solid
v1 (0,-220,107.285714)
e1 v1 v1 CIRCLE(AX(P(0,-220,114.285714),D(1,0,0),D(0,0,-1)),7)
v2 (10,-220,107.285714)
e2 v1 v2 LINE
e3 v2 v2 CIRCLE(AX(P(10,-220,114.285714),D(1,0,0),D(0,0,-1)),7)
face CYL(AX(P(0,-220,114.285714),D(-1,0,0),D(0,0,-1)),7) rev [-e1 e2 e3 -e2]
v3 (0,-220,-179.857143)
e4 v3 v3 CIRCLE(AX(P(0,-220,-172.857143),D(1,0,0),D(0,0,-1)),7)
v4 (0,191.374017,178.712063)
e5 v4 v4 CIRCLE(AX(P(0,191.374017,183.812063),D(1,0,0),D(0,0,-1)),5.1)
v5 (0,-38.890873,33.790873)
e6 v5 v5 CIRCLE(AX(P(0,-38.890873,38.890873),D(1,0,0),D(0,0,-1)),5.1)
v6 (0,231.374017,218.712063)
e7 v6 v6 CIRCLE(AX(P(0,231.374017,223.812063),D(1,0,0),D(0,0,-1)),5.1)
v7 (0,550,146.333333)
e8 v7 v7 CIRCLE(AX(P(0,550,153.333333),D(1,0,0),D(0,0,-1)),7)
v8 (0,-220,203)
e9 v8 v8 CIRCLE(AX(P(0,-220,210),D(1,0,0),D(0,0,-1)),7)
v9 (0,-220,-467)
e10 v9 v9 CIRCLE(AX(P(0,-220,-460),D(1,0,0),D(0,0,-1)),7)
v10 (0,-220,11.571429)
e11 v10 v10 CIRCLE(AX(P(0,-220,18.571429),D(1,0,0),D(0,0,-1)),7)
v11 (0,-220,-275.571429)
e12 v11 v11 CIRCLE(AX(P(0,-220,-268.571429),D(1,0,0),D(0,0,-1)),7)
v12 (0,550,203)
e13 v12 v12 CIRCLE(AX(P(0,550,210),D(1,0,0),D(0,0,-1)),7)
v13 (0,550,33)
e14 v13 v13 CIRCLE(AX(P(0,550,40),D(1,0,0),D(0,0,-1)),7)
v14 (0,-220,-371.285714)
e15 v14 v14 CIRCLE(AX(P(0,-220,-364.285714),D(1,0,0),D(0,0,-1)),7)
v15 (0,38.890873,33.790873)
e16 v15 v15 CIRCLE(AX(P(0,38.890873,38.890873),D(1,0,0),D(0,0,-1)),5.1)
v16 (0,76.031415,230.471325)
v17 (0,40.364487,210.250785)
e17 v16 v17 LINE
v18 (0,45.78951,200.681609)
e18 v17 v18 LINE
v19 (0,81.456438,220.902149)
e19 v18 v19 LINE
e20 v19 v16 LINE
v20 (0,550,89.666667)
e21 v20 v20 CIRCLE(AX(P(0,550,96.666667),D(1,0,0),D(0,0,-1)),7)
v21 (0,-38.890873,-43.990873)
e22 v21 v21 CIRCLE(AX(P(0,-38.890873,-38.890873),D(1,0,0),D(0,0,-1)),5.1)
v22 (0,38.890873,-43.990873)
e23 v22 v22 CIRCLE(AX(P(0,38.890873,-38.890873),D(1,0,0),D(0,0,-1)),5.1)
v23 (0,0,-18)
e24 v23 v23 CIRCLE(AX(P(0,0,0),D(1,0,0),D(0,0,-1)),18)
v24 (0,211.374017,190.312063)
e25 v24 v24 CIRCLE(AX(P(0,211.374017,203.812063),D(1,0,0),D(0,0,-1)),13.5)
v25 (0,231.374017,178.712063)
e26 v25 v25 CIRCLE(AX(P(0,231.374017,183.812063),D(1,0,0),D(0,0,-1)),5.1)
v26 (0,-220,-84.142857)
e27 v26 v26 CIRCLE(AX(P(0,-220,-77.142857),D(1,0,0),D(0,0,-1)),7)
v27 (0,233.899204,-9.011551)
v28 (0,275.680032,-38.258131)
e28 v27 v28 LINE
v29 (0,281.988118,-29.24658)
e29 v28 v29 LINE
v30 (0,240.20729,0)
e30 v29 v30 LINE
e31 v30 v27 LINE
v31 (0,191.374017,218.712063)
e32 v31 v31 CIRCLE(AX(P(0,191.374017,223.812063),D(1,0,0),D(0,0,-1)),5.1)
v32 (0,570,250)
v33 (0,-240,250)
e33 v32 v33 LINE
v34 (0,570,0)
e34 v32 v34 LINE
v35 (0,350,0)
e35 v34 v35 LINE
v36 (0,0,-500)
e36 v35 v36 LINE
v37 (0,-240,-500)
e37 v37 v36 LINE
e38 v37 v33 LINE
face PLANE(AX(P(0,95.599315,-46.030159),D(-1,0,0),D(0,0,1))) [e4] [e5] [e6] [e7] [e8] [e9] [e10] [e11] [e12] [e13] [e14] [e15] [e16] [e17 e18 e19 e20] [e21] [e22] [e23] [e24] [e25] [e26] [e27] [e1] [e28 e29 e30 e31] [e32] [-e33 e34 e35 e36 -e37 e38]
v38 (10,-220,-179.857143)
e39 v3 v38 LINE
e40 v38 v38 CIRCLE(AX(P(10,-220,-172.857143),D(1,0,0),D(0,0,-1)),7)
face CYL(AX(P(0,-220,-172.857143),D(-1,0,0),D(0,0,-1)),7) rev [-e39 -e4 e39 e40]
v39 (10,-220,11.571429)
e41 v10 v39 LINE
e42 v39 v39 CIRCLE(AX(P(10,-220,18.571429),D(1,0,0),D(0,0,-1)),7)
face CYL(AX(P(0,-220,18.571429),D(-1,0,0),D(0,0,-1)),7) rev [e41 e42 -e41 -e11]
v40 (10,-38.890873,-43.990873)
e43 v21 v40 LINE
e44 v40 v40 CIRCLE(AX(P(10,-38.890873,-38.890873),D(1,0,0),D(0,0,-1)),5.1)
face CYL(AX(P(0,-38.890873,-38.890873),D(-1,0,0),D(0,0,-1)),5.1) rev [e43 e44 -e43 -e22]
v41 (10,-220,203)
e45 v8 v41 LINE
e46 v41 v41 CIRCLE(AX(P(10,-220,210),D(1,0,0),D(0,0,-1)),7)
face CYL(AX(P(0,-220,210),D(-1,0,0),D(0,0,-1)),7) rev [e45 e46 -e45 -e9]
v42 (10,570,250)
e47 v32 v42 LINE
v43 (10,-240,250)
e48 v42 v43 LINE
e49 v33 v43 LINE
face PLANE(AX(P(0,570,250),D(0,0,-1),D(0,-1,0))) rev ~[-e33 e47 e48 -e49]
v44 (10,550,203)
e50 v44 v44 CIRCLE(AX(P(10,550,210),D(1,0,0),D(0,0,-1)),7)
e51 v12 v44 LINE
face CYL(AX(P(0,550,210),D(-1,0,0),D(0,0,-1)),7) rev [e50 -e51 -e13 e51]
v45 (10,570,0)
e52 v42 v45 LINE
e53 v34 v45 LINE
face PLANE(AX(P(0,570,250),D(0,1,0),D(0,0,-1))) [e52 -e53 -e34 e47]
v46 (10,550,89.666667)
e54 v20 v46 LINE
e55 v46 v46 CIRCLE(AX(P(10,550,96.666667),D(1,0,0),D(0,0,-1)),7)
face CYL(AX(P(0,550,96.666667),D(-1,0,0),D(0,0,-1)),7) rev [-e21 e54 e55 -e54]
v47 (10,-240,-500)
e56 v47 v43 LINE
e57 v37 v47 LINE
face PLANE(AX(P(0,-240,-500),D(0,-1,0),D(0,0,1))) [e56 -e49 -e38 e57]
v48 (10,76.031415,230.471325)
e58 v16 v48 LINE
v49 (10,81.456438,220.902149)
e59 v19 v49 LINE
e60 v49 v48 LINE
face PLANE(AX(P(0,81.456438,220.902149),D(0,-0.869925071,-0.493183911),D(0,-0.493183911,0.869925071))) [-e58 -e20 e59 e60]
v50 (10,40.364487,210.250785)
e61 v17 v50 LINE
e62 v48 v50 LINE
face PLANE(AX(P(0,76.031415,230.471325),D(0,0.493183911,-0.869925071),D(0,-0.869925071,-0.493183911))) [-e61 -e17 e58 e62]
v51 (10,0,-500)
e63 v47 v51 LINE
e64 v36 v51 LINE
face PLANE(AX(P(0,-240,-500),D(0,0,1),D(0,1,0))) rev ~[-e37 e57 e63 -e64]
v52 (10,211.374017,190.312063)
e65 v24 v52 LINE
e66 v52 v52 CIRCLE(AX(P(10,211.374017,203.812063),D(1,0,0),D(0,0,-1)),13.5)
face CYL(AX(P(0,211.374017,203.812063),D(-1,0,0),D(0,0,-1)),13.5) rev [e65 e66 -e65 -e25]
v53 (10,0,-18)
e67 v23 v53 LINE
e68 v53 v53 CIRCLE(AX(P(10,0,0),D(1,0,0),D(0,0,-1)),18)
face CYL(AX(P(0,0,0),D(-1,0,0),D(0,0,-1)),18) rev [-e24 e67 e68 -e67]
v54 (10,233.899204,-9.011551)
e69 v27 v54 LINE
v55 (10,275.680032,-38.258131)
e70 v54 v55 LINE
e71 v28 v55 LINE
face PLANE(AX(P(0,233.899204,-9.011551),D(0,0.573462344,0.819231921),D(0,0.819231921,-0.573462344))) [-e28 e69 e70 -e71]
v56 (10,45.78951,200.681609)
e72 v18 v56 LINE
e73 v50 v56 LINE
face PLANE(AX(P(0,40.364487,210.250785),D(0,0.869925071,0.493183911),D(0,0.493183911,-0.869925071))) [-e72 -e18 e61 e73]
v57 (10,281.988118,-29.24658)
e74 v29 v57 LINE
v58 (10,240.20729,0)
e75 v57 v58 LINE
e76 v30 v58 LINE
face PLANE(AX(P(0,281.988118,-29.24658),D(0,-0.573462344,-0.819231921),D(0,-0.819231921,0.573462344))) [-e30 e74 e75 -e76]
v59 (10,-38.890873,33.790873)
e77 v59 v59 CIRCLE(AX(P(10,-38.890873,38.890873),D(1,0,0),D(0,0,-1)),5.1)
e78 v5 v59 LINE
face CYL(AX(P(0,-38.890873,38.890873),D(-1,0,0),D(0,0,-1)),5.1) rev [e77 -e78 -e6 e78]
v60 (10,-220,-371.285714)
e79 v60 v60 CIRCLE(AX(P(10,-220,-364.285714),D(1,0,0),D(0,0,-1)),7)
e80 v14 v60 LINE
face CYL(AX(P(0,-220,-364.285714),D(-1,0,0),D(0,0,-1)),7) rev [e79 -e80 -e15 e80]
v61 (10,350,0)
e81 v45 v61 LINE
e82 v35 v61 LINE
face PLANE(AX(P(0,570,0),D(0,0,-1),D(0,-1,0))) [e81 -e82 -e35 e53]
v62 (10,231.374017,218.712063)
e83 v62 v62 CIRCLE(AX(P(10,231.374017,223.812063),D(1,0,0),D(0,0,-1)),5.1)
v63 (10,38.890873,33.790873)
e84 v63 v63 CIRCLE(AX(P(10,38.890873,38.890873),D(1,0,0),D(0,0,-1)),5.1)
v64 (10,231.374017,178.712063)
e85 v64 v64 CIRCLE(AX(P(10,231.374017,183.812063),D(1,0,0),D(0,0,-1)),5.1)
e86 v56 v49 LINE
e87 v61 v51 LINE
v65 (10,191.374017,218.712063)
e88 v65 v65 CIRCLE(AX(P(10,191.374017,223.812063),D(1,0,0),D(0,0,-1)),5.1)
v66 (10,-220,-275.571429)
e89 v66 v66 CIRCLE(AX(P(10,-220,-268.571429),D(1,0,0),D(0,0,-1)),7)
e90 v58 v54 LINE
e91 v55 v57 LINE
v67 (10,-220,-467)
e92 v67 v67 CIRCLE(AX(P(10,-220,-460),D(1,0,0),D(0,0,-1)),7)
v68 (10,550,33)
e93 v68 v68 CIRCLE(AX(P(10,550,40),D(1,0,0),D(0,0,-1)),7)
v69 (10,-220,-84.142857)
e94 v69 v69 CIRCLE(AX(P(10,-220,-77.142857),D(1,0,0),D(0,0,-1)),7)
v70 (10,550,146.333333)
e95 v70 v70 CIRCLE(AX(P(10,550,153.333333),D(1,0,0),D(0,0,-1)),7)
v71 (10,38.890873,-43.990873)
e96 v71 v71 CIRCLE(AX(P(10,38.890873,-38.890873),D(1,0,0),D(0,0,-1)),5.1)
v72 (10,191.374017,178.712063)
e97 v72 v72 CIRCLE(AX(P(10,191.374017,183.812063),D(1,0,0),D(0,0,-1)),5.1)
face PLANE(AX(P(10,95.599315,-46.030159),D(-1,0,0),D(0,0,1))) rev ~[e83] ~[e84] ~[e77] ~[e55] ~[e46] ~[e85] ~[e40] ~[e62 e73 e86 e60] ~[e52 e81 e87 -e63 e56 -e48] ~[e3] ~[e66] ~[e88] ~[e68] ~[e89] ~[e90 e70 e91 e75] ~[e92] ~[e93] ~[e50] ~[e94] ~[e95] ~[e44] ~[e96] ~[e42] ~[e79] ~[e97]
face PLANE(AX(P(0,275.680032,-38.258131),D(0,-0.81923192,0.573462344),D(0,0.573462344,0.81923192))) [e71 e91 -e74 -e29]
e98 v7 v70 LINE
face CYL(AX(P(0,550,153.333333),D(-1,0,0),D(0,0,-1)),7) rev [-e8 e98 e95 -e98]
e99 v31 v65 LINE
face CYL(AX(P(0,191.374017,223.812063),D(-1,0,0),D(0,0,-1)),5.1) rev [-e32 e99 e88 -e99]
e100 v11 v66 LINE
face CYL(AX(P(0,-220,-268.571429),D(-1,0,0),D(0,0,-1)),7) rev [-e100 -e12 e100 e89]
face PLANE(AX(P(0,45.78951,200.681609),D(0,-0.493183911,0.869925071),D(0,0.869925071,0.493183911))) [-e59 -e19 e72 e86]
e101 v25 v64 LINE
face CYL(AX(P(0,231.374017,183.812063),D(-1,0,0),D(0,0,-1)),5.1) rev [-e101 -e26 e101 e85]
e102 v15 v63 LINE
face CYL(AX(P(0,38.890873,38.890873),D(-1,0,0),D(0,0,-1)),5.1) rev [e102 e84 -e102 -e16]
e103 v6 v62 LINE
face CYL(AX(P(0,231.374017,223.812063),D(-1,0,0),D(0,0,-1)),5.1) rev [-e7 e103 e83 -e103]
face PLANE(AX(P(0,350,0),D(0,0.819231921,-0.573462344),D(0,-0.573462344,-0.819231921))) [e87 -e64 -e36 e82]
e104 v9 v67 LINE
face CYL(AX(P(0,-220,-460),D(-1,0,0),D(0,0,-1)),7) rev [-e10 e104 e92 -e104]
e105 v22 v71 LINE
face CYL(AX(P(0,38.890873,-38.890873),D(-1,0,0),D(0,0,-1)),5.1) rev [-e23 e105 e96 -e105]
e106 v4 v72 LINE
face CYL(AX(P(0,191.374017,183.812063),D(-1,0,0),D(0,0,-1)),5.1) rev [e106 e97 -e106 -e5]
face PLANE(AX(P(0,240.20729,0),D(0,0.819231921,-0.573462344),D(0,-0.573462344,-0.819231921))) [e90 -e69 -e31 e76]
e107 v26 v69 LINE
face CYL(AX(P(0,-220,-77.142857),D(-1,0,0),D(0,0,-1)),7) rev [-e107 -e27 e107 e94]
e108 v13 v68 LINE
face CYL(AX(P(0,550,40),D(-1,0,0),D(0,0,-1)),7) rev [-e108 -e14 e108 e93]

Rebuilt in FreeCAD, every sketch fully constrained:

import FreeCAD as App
import Part
import Sketcher
Q = App.Units.Quantity

doc = App.newDocument("Part")
body = doc.addObject("PartDesign::Body", "Body")

# Sketch on YZ plane
sketch1 = doc.addObject("Sketcher::SketchObject", "Sketch")
body.addObject(sketch1)
sketch1.AttachmentSupport = (doc.YZ_Plane, [""])
sketch1.MapMode = "FlatFace"
sketch1.addGeometry(Part.LineSegment(App.Vector(570, 250, 0), App.Vector(-240, 250, 0)), False)
sketch1.addGeometry(Part.LineSegment(App.Vector(-240, 250, 0), App.Vector(-240, -500, 0)), False)
sketch1.addGeometry(Part.LineSegment(App.Vector(-240, -500, 0), App.Vector(0, -500, 0)), False)
sketch1.addGeometry(Part.LineSegment(App.Vector(0, -500, 0), App.Vector(350, 0, 0)), False)
sketch1.addGeometry(Part.LineSegment(App.Vector(350, 0, 0), App.Vector(570, 0, 0)), False)
sketch1.addGeometry(Part.LineSegment(App.Vector(570, 0, 0), App.Vector(570, 250, 0)), False)
sketch1.addGeometry(Part.Circle(App.Vector(-220, -460, 0), App.Vector(0, 0, 1), 7), False)
sketch1.addGeometry(Part.Circle(App.Vector(-220, -364, 0), App.Vector(0, 0, 1), 7), False)
sketch1.addGeometry(Part.Circle(App.Vector(-220, -269, 0), App.Vector(0, 0, 1), 7), False)
sketch1.addGeometry(Part.Circle(App.Vector(-220, -173, 0), App.Vector(0, 0, 1), 7), False)
sketch1.addGeometry(Part.Circle(App.Vector(-220, -77, 0), App.Vector(0, 0, 1), 7), False)
sketch1.addGeometry(Part.Circle(App.Vector(-220, 19, 0), App.Vector(0, 0, 1), 7), False)
sketch1.addGeometry(Part.Circle(App.Vector(-39, -39, 0), App.Vector(0, 0, 1), 5), False)
sketch1.addGeometry(Part.Circle(App.Vector(-39, 39, 0), App.Vector(0, 0, 1), 5), False)
sketch1.addGeometry(Part.Circle(App.Vector(-220, 114, 0), App.Vector(0, 0, 1), 7), False)
sketch1.addGeometry(Part.Circle(App.Vector(-220, 210, 0), App.Vector(0, 0, 1), 7), False)
sketch1.addGeometry(Part.Circle(App.Vector(39, -39, 0), App.Vector(0, 0, 1), 5), False)
sketch1.addGeometry(Part.Circle(App.Vector(0, 0, 0), App.Vector(0, 0, 1), 18), False)
sketch1.addGeometry(Part.Circle(App.Vector(39, 39, 0), App.Vector(0, 0, 1), 5), False)
sketch1.addGeometry(Part.LineSegment(App.Vector(46, 201, 0), App.Vector(40, 210, 0)), False)
sketch1.addGeometry(Part.LineSegment(App.Vector(40, 210, 0), App.Vector(76, 230, 0)), False)
sketch1.addGeometry(Part.LineSegment(App.Vector(76, 230, 0), App.Vector(81, 221, 0)), False)
sketch1.addGeometry(Part.LineSegment(App.Vector(81, 221, 0), App.Vector(46, 201, 0)), False)
sketch1.addGeometry(Part.LineSegment(App.Vector(282, -29, 0), App.Vector(276, -38, 0)), False)
sketch1.addGeometry(Part.LineSegment(App.Vector(276, -38, 0), App.Vector(234, -9, 0)), False)
sketch1.addGeometry(Part.LineSegment(App.Vector(234, -9, 0), App.Vector(240, 0, 0)), False)
sketch1.addGeometry(Part.LineSegment(App.Vector(240, 0, 0), App.Vector(282, -29, 0)), False)
sketch1.addGeometry(Part.Circle(App.Vector(191, 184, 0), App.Vector(0, 0, 1), 5), False)
sketch1.addGeometry(Part.Circle(App.Vector(211, 204, 0), App.Vector(0, 0, 1), 14), False)
sketch1.addGeometry(Part.Circle(App.Vector(191, 224, 0), App.Vector(0, 0, 1), 5), False)
sketch1.addGeometry(Part.Circle(App.Vector(231, 184, 0), App.Vector(0, 0, 1), 5), False)
sketch1.addGeometry(Part.Circle(App.Vector(231, 224, 0), App.Vector(0, 0, 1), 5), False)
sketch1.addGeometry(Part.Circle(App.Vector(550, 40, 0), App.Vector(0, 0, 1), 7), False)
sketch1.addGeometry(Part.Circle(App.Vector(550, 97, 0), App.Vector(0, 0, 1), 7), False)
sketch1.addGeometry(Part.Circle(App.Vector(550, 153, 0), App.Vector(0, 0, 1), 7), False)
sketch1.addGeometry(Part.Circle(App.Vector(550, 210, 0), App.Vector(0, 0, 1), 7), False)
sketch1.addConstraint(Sketcher.Constraint("Coincident", 0, 2, 1, 1))
sketch1.addConstraint(Sketcher.Constraint("Coincident", 1, 2, 2, 1))
sketch1.addConstraint(Sketcher.Constraint("Coincident", 2, 2, 3, 1))
sketch1.addConstraint(Sketcher.Constraint("Coincident", 3, 2, 4, 1))
sketch1.addConstraint(Sketcher.Constraint("Coincident", 4, 2, 5, 1))
sketch1.addConstraint(Sketcher.Constraint("Coincident", 5, 2, 0, 1))
sketch1.addConstraint(Sketcher.Constraint("Coincident", 19, 2, 20, 1))
sketch1.addConstraint(Sketcher.Constraint("Coincident", 20, 2, 21, 1))
sketch1.addConstraint(Sketcher.Constraint("Coincident", 21, 2, 22, 1))
sketch1.addConstraint(Sketcher.Constraint("Coincident", 22, 2, 19, 1))
sketch1.addConstraint(Sketcher.Constraint("Coincident", 23, 2, 24, 1))
sketch1.addConstraint(Sketcher.Constraint("Coincident", 24, 2, 25, 1))
sketch1.addConstraint(Sketcher.Constraint("Coincident", 25, 2, 26, 1))
sketch1.addConstraint(Sketcher.Constraint("Coincident", 26, 2, 23, 1))
sketch1.addConstraint(Sketcher.Constraint("Horizontal", 0))
sketch1.addConstraint(Sketcher.Constraint("Vertical", 1))
sketch1.addConstraint(Sketcher.Constraint("Horizontal", 2))
sketch1.addConstraint(Sketcher.Constraint("Horizontal", 4))
sketch1.addConstraint(Sketcher.Constraint("Vertical", 5))
sketch1.addConstraint(Sketcher.Constraint("Coincident", 17, 3, -1, 1))
sketch1.addConstraint(Sketcher.Constraint("Equal", 6, 7))
sketch1.addConstraint(Sketcher.Constraint("Equal", 7, 8))
sketch1.addConstraint(Sketcher.Constraint("Equal", 8, 9))
sketch1.addConstraint(Sketcher.Constraint("Equal", 9, 10))
sketch1.addConstraint(Sketcher.Constraint("Equal", 10, 11))
sketch1.addConstraint(Sketcher.Constraint("Equal", 12, 13))
sketch1.addConstraint(Sketcher.Constraint("Equal", 11, 14))
sketch1.addConstraint(Sketcher.Constraint("Equal", 14, 15))
sketch1.addConstraint(Sketcher.Constraint("Equal", 13, 16))
sketch1.addConstraint(Sketcher.Constraint("Equal", 16, 18))
sketch1.addConstraint(Sketcher.Constraint("Equal", 18, 27))
sketch1.addConstraint(Sketcher.Constraint("Equal", 27, 29))
sketch1.addConstraint(Sketcher.Constraint("Equal", 29, 30))
sketch1.addConstraint(Sketcher.Constraint("Equal", 30, 31))
sketch1.addConstraint(Sketcher.Constraint("Equal", 15, 32))
sketch1.addConstraint(Sketcher.Constraint("Equal", 32, 33))
sketch1.addConstraint(Sketcher.Constraint("Equal", 33, 34))
sketch1.addConstraint(Sketcher.Constraint("Equal", 34, 35))
sketch1.addConstraint(Sketcher.Constraint("Symmetric", 13, 3, 16, 3, -1, 1))
sketch1.addConstraint(Sketcher.Constraint("Symmetric", 12, 3, 18, 3, -1, 1))
sketch1.addConstraint(Sketcher.Constraint("Symmetric", 12, 3, 16, 3, -2))
sketch1.addConstraint(Sketcher.Constraint("PointOnObject", 2, 2, -2))
sketch1.addConstraint(Sketcher.Constraint("PointOnObject", 3, 2, -1))
sketch1.addConstraint(Sketcher.Constraint("PointOnObject", 25, 2, -1))
sketch1.addConstraint(Sketcher.Constraint("Perpendicular", 19, 20))
sketch1.addConstraint(Sketcher.Constraint("Perpendicular", 20, 21))
sketch1.addConstraint(Sketcher.Constraint("Perpendicular", 21, 22))
sketch1.addConstraint(Sketcher.Constraint("Parallel", 3, 23))
sketch1.addConstraint(Sketcher.Constraint("Perpendicular", 23, 24))
sketch1.addConstraint(Sketcher.Constraint("Perpendicular", 24, 25))
sketch1.addConstraint(Sketcher.Constraint("Perpendicular", 25, 26))
sketch1.addConstraint(Sketcher.Constraint("Horizontal", 27, 3, 30, 3))
sketch1.addConstraint(Sketcher.Constraint("Horizontal", 29, 3, 31, 3))
sketch1.addConstraint(Sketcher.Constraint("Horizontal", 15, 3, 35, 3))
sketch1.addConstraint(Sketcher.Constraint("Vertical", 6, 3, 7, 3))
sketch1.addConstraint(Sketcher.Constraint("Vertical", 7, 3, 8, 3))
sketch1.addConstraint(Sketcher.Constraint("Vertical", 8, 3, 9, 3))
sketch1.addConstraint(Sketcher.Constraint("Vertical", 9, 3, 10, 3))
sketch1.addConstraint(Sketcher.Constraint("Vertical", 10, 3, 11, 3))
sketch1.addConstraint(Sketcher.Constraint("Vertical", 11, 3, 14, 3))
sketch1.addConstraint(Sketcher.Constraint("Vertical", 14, 3, 15, 3))
sketch1.addConstraint(Sketcher.Constraint("Vertical", 27, 3, 29, 3))
sketch1.addConstraint(Sketcher.Constraint("Vertical", 30, 3, 31, 3))
sketch1.addConstraint(Sketcher.Constraint("Vertical", 32, 3, 33, 3))
sketch1.addConstraint(Sketcher.Constraint("Vertical", 33, 3, 34, 3))
sketch1.addConstraint(Sketcher.Constraint("Vertical", 34, 3, 35, 3))
sketch1.addConstraint(Sketcher.Constraint("Equal", 21, 23))
sketch1.addConstraint(Sketcher.Constraint("Diameter", 6, Q("14 mm")))
sketch1.addConstraint(Sketcher.Constraint("Diameter", 17, Q("36 mm")))
sketch1.addConstraint(Sketcher.Constraint("Diameter", 28, Q("27 mm")))
sketch1.addConstraint(Sketcher.Constraint("Diameter", 12, Q("10.2 mm")))
sketch1.addConstraint(Sketcher.Constraint("DistanceX", 0, 2, 0, 1, Q("810 mm")))
sketch1.addConstraint(Sketcher.Constraint("DistanceX", 2, 1, 2, 2, Q("240 mm")))
sketch1.addConstraint(Sketcher.Constraint("DistanceX", 4, 1, 4, 2, Q("220 mm")))
sketch1.addConstraint(Sketcher.Constraint("DistanceY", 1, 2, 1, 1, Q("750 mm")))
sketch1.addConstraint(Sketcher.Constraint("DistanceY", 5, 1, 5, 2, Q("250 mm")))
sketch1.addConstraint(Sketcher.Constraint("Distance", 19, Q("11 mm")))
sketch1.addConstraint(Sketcher.Constraint("Distance", 20, Q("41 mm")))
sketch1.addConstraint(Sketcher.Constraint("Distance", 24, Q("51 mm")))
sketch1.addConstraint(Sketcher.Constraint("DistanceX", 6, 3, -1, 1, Q("220 mm")))
sketch1.addConstraint(Sketcher.Constraint("DistanceY", 6, 3, -1, 1, Q("460 mm")))
sketch1.addConstraint(Sketcher.Constraint("DistanceY", -1, 1, 15, 3, Q("210 mm")))
sketch1.addConstraint(Sketcher.Constraint("DistanceX", -1, 1, 32, 3, Q("550 mm")))
sketch1.addConstraint(Sketcher.Constraint("DistanceY", -1, 1, 32, 3, Q("40 mm")))
sketch1.addConstraint(Sketcher.Constraint("DistanceX", 27, 3, 28, 3, Q("20 mm")))
sketch1.addConstraint(Sketcher.Constraint("DistanceY", 27, 3, 28, 3, Q("20 mm")))
sketch1.addConstraint(Sketcher.Constraint("DistanceY", 28, 3, 29, 3, Q("20 mm")))
sketch1.addConstraint(Sketcher.Constraint("DistanceX", 28, 3, 30, 3, Q("20 mm")))
sketch1.addConstraint(Sketcher.Constraint("DistanceY", 12, 3, 11, 3, Q("57.462302 mm")))
sketch1.addConstraint(Sketcher.Constraint("DistanceY", 8, 3, 13, 3, Q("307.462302 mm")))
sketch1.addConstraint(Sketcher.Constraint("DistanceX", 20, 2, 29, 3, Q("115.342602 mm")))
sketch1.addConstraint(Sketcher.Constraint("DistanceX", 30, 3, 26, 2, Q("50.614101 mm")))
sketch1.addConstraint(Sketcher.Constraint("DistanceY", 8, 3, -1, 1, Q("268.571429 mm")))
sketch1.addConstraint(Sketcher.Constraint("DistanceY", -1, 1, 21, 2, Q("220.902149 mm")))
sketch1.addConstraint(Sketcher.Constraint("DistanceX", -1, 1, 22, 2, Q("45.78951 mm")))
sketch1.addConstraint(Sketcher.Constraint("DistanceY", -1, 1, 22, 2, Q("200.681609 mm")))
sketch1.addConstraint(Sketcher.Constraint("DistanceY", 7, 3, 9, 3, Q("191.428571 mm")))
sketch1.addConstraint(Sketcher.Constraint("DistanceY", 8, 3, 10, 3, Q("191.428571 mm")))
sketch1.addConstraint(Sketcher.Constraint("DistanceY", 9, 3, 11, 3, Q("191.428571 mm")))
sketch1.addConstraint(Sketcher.Constraint("DistanceY", 10, 3, 14, 3, Q("191.428571 mm")))
sketch1.addConstraint(Sketcher.Constraint("DistanceY", 18, 3, 27, 3, Q("144.92119 mm")))
sketch1.addConstraint(Sketcher.Constraint("DistanceX", 13, 3, 27, 3, Q("230.26489 mm")))
sketch1.addConstraint(Sketcher.Constraint("DistanceY", 34, 3, 30, 3, Q("30.478729 mm")))
sketch1.addConstraint(Sketcher.Constraint("DistanceY", -1, 1, 33, 3, Q("96.666667 mm")))
pad1 = doc.addObject("PartDesign::Pad", "Pad")
body.addObject(pad1)
pad1.Profile = sketch1
pad1.Length = 10

doc.recompute()
